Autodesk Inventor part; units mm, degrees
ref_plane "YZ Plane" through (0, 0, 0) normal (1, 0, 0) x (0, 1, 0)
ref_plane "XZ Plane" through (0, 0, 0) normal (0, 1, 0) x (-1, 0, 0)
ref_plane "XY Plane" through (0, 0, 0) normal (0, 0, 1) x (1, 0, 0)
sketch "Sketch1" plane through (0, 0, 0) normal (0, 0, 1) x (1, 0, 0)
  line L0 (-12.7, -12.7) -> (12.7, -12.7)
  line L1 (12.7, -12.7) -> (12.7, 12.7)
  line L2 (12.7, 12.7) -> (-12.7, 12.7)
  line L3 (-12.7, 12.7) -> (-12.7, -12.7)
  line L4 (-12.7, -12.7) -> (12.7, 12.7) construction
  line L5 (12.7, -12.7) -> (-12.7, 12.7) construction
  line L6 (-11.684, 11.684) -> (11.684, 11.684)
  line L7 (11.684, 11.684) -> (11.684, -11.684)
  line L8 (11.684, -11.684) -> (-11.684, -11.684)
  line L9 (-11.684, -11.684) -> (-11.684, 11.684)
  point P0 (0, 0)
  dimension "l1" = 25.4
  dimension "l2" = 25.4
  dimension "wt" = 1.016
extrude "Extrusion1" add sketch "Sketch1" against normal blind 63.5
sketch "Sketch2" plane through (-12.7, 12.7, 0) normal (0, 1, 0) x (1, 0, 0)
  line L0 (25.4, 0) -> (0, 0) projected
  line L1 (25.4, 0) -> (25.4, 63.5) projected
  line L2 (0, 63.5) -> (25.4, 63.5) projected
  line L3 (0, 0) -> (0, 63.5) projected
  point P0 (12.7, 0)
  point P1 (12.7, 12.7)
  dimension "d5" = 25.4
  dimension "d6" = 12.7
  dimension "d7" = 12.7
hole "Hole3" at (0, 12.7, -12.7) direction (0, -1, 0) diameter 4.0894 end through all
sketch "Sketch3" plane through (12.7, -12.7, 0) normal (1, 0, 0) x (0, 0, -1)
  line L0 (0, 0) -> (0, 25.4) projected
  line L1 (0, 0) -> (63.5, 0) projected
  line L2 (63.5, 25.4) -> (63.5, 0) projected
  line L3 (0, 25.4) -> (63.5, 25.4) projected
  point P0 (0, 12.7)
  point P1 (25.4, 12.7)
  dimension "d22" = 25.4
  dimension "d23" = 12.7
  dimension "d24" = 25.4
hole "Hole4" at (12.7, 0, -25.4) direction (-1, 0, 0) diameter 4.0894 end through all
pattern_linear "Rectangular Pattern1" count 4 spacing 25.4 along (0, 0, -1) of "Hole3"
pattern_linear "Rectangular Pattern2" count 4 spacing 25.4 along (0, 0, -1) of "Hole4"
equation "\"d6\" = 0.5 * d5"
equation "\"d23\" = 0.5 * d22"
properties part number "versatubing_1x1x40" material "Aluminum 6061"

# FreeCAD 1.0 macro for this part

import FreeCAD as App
import Part
import Sketcher
Q = App.Units.Quantity

doc = App.newDocument("Part")
body = doc.addObject("PartDesign::Body", "Body")

sketch1 = body.newObject("Sketcher::SketchObject", "Sketch")
sketch1.AttachmentSupport = (doc.getObject("XY_Plane"), [""])
sketch1.MapMode = "FlatFace"
sketch1.addGeometry([
    Part.LineSegment(App.Vector(-13, 13, 0), App.Vector(-13, -13, 0)),
    Part.LineSegment(App.Vector(-13, -13, 0), App.Vector(13, -13, 0)),
    Part.LineSegment(App.Vector(13, -13, 0), App.Vector(13, 13, 0)),
    Part.LineSegment(App.Vector(13, 13, 0), App.Vector(-13, 13, 0)),
    Part.LineSegment(App.Vector(-12, -12, 0), App.Vector(-12, 12, 0)),
    Part.LineSegment(App.Vector(-12, 12, 0), App.Vector(12, 12, 0)),
    Part.LineSegment(App.Vector(12, 12, 0), App.Vector(12, -12, 0)),
    Part.LineSegment(App.Vector(12, -12, 0), App.Vector(-12, -12, 0)),
], False)
sketch1.addConstraint([
    Sketcher.Constraint("Coincident", 0, 2, 1, 1),
    Sketcher.Constraint("Coincident", 1, 2, 2, 1),
    Sketcher.Constraint("Coincident", 2, 2, 3, 1),
    Sketcher.Constraint("Coincident", 3, 2, 0, 1),
    Sketcher.Constraint("Coincident", 4, 2, 5, 1),
    Sketcher.Constraint("Coincident", 5, 2, 6, 1),
    Sketcher.Constraint("Coincident", 6, 2, 7, 1),
    Sketcher.Constraint("Coincident", 7, 2, 4, 1),
    Sketcher.Constraint("Vertical", 0),
    Sketcher.Constraint("Horizontal", 1),
    Sketcher.Constraint("Vertical", 2),
    Sketcher.Constraint("Horizontal", 3),
    Sketcher.Constraint("Vertical", 4),
    Sketcher.Constraint("Horizontal", 5),
    Sketcher.Constraint("Vertical", 6),
    Sketcher.Constraint("Horizontal", 7),
    Sketcher.Constraint("Symmetric", 0, 2, 2, 2, -1, 1),
    Sketcher.Constraint("Symmetric", 4, 2, 6, 2, -1, 1),
    Sketcher.Constraint("Equal", 3, 0),
    Sketcher.Constraint("Equal", 7, 4),
    Sketcher.Constraint("DistanceX", 1, 1, 1, 2, Q("1 in")),
    Sketcher.Constraint("DistanceX", 3, 2, 4, 2, Q("0.04 in")),
])
pad1 = body.newObject("PartDesign::Pad", "Pad")
pad1.Profile = sketch1
pad1.Length = Q("2.5 in")
pad1.Reversed = True

sketch2 = body.newObject("Sketcher::SketchObject", "Sketch001")
sketch2.AttachmentSupport = (doc.getObject("XZ_Plane"), [""])
sketch2.MapMode = "FlatFace"
sketch2.AttachmentOffset = App.Placement(App.Vector(0, 0, -0.5 * 25.4), App.Rotation())
sketch2.addGeometry(Part.Circle(App.Vector(0, -12.7, 0), App.Vector(0, 0, 1), 2), False)
sketch2.addConstraint([
    Sketcher.Constraint("PointOnObject", 0, 3, -2),
    Sketcher.Constraint("Diameter", 0, Q("0.161 in")),
    Sketcher.Constraint("DistanceY", 0, 3, -1, 1, Q("0.5 in")),
])
doc.recompute()
hole = body.newObject("PartDesign::Hole", "Hole")
hole.Profile = sketch2
hole.ThreadType = "None"
hole.Diameter = Q("0.161 in")
hole.DepthType = "ThroughAll"
hole.Reversed = True

sketch3 = body.newObject("Sketcher::SketchObject", "Sketch002")
sketch3.AttachmentSupport = (doc.getObject("YZ_Plane"), [""])
sketch3.MapMode = "FlatFace"
sketch3.AttachmentOffset = App.Placement(App.Vector(0, 0, 0.5 * 25.4), App.Rotation())
sketch3.addGeometry(Part.Circle(App.Vector(0, -25.4, 0), App.Vector(0, 0, 1), 2), False)
sketch3.addConstraint([
    Sketcher.Constraint("PointOnObject", 0, 3, -2),
    Sketcher.Constraint("Diameter", 0, Q("0.161 in")),
    Sketcher.Constraint("DistanceY", 0, 3, -1, 1, Q("1 in")),
])
doc.recompute()
hole2 = body.newObject("PartDesign::Hole", "Hole001")
hole2.Profile = sketch3
hole2.ThreadType = "None"
hole2.Diameter = Q("0.161 in")
hole2.DepthType = "ThroughAll"
doc.recompute()

linearpattern = body.newObject("PartDesign::LinearPattern", "LinearPattern")
linearpattern.Originals = [hole]
linearpattern.Direction = (doc.getObject("Z_Axis"), [""])
linearpattern.Mode = "offset"
linearpattern.Offset = Q("1 in")
linearpattern.Occurrences = 4
linearpattern.Reversed = True
body.Tip = linearpattern
doc.recompute()

linearpattern2 = body.newObject("PartDesign::LinearPattern", "LinearPattern001")
linearpattern2.Originals = [hole2]
linearpattern2.Direction = (doc.getObject("Z_Axis"), [""])
linearpattern2.Mode = "offset"
linearpattern2.Offset = Q("1 in")
linearpattern2.Occurrences = 4
linearpattern2.Reversed = True
body.Tip = linearpattern2

doc.recompute()
